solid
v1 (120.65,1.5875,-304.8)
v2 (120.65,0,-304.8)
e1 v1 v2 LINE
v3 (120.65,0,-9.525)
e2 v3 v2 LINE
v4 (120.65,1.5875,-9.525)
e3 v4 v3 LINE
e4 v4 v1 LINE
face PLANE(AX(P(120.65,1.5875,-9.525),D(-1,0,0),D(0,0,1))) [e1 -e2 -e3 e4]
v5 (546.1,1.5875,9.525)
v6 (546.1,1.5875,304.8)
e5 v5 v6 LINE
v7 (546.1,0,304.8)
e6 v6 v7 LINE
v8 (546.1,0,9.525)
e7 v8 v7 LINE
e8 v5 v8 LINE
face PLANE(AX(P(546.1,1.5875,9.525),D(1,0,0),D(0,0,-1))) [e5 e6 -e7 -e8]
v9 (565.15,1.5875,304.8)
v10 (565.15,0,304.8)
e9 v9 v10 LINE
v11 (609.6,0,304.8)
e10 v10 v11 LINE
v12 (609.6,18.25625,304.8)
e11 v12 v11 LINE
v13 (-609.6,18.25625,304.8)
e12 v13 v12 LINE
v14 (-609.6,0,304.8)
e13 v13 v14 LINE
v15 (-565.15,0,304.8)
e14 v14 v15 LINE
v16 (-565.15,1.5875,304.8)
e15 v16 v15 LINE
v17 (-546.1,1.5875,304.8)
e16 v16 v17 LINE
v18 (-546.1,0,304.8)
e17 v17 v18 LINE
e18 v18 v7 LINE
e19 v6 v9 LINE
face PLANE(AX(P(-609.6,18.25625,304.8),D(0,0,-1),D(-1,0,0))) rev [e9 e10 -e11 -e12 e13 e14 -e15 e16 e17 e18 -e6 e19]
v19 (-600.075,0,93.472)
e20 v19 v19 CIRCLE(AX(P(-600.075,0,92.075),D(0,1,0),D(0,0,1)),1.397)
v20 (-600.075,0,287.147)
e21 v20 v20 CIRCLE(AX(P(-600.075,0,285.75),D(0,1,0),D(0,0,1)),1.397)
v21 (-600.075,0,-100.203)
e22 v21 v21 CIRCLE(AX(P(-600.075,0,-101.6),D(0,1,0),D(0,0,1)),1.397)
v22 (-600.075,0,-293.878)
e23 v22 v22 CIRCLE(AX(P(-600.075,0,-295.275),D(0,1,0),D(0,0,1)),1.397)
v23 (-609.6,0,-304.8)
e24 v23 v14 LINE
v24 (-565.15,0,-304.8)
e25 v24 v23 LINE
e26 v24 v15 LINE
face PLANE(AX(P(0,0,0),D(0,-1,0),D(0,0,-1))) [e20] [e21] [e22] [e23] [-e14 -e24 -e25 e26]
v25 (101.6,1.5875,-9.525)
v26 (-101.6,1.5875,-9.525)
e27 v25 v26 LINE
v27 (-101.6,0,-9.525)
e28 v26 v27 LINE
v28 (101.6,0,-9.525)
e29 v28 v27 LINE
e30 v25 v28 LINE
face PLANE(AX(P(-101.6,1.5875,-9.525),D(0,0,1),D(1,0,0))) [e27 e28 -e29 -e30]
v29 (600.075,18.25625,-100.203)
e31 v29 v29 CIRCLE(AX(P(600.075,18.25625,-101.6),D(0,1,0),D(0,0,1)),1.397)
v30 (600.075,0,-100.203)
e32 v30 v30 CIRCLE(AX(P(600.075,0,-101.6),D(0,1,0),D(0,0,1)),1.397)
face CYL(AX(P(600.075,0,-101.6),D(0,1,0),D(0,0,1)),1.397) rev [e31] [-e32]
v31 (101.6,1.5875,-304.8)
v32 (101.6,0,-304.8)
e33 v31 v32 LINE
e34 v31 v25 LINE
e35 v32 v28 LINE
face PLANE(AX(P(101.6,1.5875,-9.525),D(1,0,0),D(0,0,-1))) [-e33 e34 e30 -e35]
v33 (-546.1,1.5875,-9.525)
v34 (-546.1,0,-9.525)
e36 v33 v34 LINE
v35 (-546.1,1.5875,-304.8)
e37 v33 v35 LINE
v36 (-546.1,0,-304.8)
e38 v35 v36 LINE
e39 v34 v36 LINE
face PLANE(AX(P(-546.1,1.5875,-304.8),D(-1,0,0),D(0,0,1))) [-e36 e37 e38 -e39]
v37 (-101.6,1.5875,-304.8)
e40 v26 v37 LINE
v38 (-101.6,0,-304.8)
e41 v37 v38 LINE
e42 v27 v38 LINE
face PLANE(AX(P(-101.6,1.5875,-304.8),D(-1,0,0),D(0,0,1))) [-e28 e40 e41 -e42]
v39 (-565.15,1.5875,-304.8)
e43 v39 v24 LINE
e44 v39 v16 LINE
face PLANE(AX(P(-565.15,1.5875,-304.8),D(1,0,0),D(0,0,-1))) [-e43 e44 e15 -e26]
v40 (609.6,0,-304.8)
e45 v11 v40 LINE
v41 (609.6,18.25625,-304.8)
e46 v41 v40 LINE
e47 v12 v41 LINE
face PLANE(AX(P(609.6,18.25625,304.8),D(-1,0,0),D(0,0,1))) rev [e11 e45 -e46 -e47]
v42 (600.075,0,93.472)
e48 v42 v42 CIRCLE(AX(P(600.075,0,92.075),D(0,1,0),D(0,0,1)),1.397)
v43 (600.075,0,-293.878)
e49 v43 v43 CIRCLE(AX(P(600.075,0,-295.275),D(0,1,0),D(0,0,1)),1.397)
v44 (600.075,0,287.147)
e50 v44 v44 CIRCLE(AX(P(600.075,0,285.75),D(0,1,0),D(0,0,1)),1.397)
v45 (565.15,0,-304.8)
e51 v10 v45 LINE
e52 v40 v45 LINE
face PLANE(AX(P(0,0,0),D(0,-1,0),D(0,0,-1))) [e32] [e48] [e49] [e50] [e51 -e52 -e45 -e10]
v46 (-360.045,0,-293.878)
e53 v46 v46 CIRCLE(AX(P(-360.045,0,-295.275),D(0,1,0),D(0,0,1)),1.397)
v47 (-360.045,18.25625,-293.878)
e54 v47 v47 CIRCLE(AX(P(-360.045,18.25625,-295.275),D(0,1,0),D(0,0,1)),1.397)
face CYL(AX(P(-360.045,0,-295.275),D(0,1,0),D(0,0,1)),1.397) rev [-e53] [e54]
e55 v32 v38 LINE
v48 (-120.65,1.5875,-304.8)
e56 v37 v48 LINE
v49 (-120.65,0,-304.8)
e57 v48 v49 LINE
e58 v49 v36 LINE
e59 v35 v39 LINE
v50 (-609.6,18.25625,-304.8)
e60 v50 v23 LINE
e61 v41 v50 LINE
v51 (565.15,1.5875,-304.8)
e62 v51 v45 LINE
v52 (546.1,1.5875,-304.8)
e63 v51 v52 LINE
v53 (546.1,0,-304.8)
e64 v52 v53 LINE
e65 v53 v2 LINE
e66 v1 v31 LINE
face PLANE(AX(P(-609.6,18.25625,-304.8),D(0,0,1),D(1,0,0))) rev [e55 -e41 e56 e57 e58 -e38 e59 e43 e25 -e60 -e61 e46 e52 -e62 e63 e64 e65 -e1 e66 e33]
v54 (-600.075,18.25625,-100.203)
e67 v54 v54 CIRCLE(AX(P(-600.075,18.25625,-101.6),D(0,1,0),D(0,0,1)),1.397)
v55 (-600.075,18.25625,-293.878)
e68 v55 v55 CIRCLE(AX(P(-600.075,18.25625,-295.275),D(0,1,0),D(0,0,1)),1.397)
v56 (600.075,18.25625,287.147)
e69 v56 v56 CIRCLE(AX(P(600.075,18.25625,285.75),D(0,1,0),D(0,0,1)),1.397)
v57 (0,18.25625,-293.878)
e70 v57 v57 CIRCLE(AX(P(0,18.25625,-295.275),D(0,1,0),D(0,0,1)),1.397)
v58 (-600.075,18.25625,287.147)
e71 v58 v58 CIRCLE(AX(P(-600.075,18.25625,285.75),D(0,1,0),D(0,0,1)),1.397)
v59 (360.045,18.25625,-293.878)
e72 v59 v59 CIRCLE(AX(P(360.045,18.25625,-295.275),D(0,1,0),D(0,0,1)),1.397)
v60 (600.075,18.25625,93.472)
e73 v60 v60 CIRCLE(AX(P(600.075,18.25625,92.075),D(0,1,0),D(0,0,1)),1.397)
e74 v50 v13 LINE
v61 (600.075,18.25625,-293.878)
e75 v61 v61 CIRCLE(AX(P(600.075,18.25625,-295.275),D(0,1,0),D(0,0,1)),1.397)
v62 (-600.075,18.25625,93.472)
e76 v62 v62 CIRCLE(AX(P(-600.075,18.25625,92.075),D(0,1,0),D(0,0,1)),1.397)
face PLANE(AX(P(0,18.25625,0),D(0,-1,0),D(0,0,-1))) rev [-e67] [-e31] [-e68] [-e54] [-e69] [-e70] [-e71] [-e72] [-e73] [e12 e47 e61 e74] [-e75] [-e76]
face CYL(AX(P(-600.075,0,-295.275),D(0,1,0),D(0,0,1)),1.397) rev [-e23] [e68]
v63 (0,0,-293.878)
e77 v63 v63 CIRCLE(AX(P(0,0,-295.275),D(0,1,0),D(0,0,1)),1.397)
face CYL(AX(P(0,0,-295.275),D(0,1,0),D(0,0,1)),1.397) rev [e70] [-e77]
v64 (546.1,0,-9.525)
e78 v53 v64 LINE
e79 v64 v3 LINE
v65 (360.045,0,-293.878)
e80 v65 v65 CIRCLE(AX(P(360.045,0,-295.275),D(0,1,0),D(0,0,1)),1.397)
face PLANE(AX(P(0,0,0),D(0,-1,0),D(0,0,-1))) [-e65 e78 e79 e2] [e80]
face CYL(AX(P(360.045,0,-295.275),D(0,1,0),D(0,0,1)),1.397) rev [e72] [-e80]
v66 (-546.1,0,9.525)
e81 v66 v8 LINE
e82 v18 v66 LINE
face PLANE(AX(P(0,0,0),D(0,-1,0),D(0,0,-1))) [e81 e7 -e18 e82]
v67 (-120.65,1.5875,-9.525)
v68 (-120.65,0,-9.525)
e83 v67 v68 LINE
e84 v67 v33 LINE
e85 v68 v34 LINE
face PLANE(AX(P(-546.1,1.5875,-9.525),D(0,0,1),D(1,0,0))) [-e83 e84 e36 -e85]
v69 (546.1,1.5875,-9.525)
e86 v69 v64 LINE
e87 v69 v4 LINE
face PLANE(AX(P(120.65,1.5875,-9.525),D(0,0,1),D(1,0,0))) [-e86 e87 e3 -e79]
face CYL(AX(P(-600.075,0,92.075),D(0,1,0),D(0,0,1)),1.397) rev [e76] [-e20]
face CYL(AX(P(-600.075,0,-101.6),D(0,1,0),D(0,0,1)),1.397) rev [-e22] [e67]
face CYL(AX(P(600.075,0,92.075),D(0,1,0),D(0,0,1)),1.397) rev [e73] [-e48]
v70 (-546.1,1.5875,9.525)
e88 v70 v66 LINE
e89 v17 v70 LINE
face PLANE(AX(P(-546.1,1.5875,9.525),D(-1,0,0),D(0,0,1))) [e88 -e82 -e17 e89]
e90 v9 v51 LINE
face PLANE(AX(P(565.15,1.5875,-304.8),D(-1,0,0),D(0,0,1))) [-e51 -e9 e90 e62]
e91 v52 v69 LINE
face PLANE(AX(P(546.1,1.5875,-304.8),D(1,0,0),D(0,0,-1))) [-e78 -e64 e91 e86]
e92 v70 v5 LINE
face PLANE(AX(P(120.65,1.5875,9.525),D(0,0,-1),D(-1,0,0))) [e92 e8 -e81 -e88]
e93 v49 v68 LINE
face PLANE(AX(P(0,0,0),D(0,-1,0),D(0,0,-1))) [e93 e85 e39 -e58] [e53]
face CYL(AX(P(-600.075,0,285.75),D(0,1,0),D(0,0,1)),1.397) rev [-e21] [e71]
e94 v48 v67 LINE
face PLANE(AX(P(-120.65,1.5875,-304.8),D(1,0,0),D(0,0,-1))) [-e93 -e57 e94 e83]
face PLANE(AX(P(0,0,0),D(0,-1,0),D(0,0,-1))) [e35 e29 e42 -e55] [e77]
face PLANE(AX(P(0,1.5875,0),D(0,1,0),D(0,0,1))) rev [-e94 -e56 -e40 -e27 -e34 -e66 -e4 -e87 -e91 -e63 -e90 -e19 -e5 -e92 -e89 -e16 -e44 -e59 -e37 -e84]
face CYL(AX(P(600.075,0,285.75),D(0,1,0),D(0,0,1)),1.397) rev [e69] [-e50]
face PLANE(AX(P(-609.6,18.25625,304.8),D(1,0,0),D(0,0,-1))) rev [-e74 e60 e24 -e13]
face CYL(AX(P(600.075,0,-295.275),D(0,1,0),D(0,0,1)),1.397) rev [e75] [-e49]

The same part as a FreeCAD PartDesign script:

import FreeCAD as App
import Part
import Sketcher

V = App.Vector
Q = App.Units.Quantity

doc = App.newDocument("Part")
body = doc.addObject("PartDesign::Body", "Body")

# Sketch on XZ plane
sketch1 = body.newObject("Sketcher::SketchObject", "Sketch")
sketch1.AttachmentSupport = (doc.getObject("XZ_Plane"), [""])
sketch1.MapMode = "FlatFace"
sketch1.addGeometry(Part.LineSegment(V(-610, -305, 0), V(-610, 305, 0)), False)
sketch1.addGeometry(Part.LineSegment(V(-610, 305, 0), V(610, 305, 0)), False)
sketch1.addGeometry(Part.LineSegment(V(610, 305, 0), V(610, -305, 0)), False)
sketch1.addGeometry(Part.LineSegment(V(610, -305, 0), V(-610, -305, 0)), False)
sketch1.addConstraint(Sketcher.Constraint("Coincident", 0, 2, 1, 1))
sketch1.addConstraint(Sketcher.Constraint("Coincident", 1, 2, 2, 1))
sketch1.addConstraint(Sketcher.Constraint("Coincident", 2, 2, 3, 1))
sketch1.addConstraint(Sketcher.Constraint("Coincident", 3, 2, 0, 1))
sketch1.addConstraint(Sketcher.Constraint("Vertical", 0))
sketch1.addConstraint(Sketcher.Constraint("Horizontal", 1))
sketch1.addConstraint(Sketcher.Constraint("Vertical", 2))
sketch1.addConstraint(Sketcher.Constraint("Horizontal", 3))
sketch1.addConstraint(Sketcher.Constraint("Symmetric", 0, 2, 2, 2, -1, 1))
sketch1.addConstraint(Sketcher.Constraint("DistanceX", 1, 1, 1, 2, Q("48 in")))
sketch1.addConstraint(Sketcher.Constraint("DistanceY", 0, 1, 0, 2, Q("24 in")))
pad1 = body.newObject("PartDesign::Pad", "Pad")
pad1.Profile = sketch1
pad1.Length = Q("0.71875 in")
pad1.Reversed = True

# Sketch on XZ plane
sketch2 = body.newObject("Sketcher::SketchObject", "Sketch001")
sketch2.AttachmentSupport = (doc.getObject("XZ_Plane"), [""])
sketch2.MapMode = "FlatFace"
sketch2.addGeometry(Part.LineSegment(V(-546, -305, 0), V(-565, -305, 0)), False)
sketch2.addGeometry(Part.LineSegment(V(-565, -305, 0), V(-565, 305, 0)), False)
sketch2.addGeometry(Part.LineSegment(V(-565, 305, 0), V(-546, 305, 0)), False)
sketch2.addGeometry(Part.LineSegment(V(-546, 305, 0), V(-546, 10, 0)), False)
sketch2.addGeometry(Part.LineSegment(V(-546, 10, 0), V(546, 10, 0)), False)
sketch2.addGeometry(Part.LineSegment(V(546, 10, 0), V(546, 305, 0)), False)
sketch2.addGeometry(Part.LineSegment(V(546, 305, 0), V(565, 305, 0)), False)
sketch2.addGeometry(Part.LineSegment(V(565, 305, 0), V(565, -305, 0)), False)
sketch2.addGeometry(Part.LineSegment(V(565, -305, 0), V(546, -305, 0)), False)
sketch2.addGeometry(Part.LineSegment(V(546, -305, 0), V(546, -10, 0)), False)
sketch2.addGeometry(Part.LineSegment(V(546, -10, 0), V(121, -10, 0)), False)
sketch2.addGeometry(Part.LineSegment(V(121, -10, 0), V(121, -305, 0)), False)
sketch2.addGeometry(Part.LineSegment(V(121, -305, 0), V(102, -305, 0)), False)
sketch2.addGeometry(Part.LineSegment(V(102, -305, 0), V(102, -10, 0)), False)
sketch2.addGeometry(Part.LineSegment(V(102, -10, 0), V(-102, -10, 0)), False)
sketch2.addGeometry(Part.LineSegment(V(-102, -10, 0), V(-102, -305, 0)), False)
sketch2.addGeometry(Part.LineSegment(V(-102, -305, 0), V(-121, -305, 0)), False)
sketch2.addGeometry(Part.LineSegment(V(-121, -305, 0), V(-121, -10, 0)), False)
sketch2.addGeometry(Part.LineSegment(V(-121, -10, 0), V(-546, -10, 0)), False)
sketch2.addGeometry(Part.LineSegment(V(-546, -10, 0), V(-546, -305, 0)), False)
sketch2.addConstraint(Sketcher.Constraint("Coincident", 0, 2, 1, 1))
sketch2.addConstraint(Sketcher.Constraint("Coincident", 1, 2, 2, 1))
sketch2.addConstraint(Sketcher.Constraint("Coincident", 2, 2, 3, 1))
sketch2.addConstraint(Sketcher.Constraint("Coincident", 3, 2, 4, 1))
sketch2.addConstraint(Sketcher.Constraint("Coincident", 4, 2, 5, 1))
sketch2.addConstraint(Sketcher.Constraint("Coincident", 5, 2, 6, 1))
sketch2.addConstraint(Sketcher.Constraint("Coincident", 6, 2, 7, 1))
sketch2.addConstraint(Sketcher.Constraint("Coincident", 7, 2, 8, 1))
sketch2.addConstraint(Sketcher.Constraint("Coincident", 8, 2, 9, 1))
sketch2.addConstraint(Sketcher.Constraint("Coincident", 9, 2, 10, 1))
sketch2.addConstraint(Sketcher.Constraint("Coincident", 10, 2, 11, 1))
sketch2.addConstraint(Sketcher.Constraint("Coincident", 11, 2, 12, 1))
sketch2.addConstraint(Sketcher.Constraint("Coincident", 12, 2, 13, 1))
sketch2.addConstraint(Sketcher.Constraint("Coincident", 13, 2, 14, 1))
sketch2.addConstraint(Sketcher.Constraint("Coincident", 14, 2, 15, 1))
sketch2.addConstraint(Sketcher.Constraint("Coincident", 15, 2, 16, 1))
sketch2.addConstraint(Sketcher.Constraint("Coincident", 16, 2, 17, 1))
sketch2.addConstraint(Sketcher.Constraint("Coincident", 17, 2, 18, 1))
sketch2.addConstraint(Sketcher.Constraint("Coincident", 18, 2, 19, 1))
sketch2.addConstraint(Sketcher.Constraint("Coincident", 19, 2, 0, 1))
sketch2.addConstraint(Sketcher.Constraint("Horizontal", 0))
sketch2.addConstraint(Sketcher.Constraint("Vertical", 1))
sketch2.addConstraint(Sketcher.Constraint("Horizontal", 2))
sketch2.addConstraint(Sketcher.Constraint("Vertical", 3))
sketch2.addConstraint(Sketcher.Constraint("Horizontal", 4))
sketch2.addConstraint(Sketcher.Constraint("Vertical", 5))
sketch2.addConstraint(Sketcher.Constraint("Horizontal", 6))
sketch2.addConstraint(Sketcher.Constraint("Vertical", 7))
sketch2.addConstraint(Sketcher.Constraint("Horizontal", 8))
sketch2.addConstraint(Sketcher.Constraint("Vertical", 9))
sketch2.addConstraint(Sketcher.Constraint("Horizontal", 10))
sketch2.addConstraint(Sketcher.Constraint("Vertical", 11))
sketch2.addConstraint(Sketcher.Constraint("Horizontal", 12))
sketch2.addConstraint(Sketcher.Constraint("Vertical", 13))
sketch2.addConstraint(Sketcher.Constraint("Horizontal", 14))
sketch2.addConstraint(Sketcher.Constraint("Vertical", 15))
sketch2.addConstraint(Sketcher.Constraint("Horizontal", 16))
sketch2.addConstraint(Sketcher.Constraint("Vertical", 17))
sketch2.addConstraint(Sketcher.Constraint("Horizontal", 18))
sketch2.addConstraint(Sketcher.Constraint("Vertical", 19))
sketch2.addConstraint(Sketcher.Constraint("Symmetric", 0, 2, 6, 2, -1, 1))
sketch2.addConstraint(Sketcher.Constraint("Symmetric", 2, 2, 8, 2, -1, 1))
sketch2.addConstraint(Sketcher.Constraint("Symmetric", 4, 2, 18, 2, -1, 1))
sketch2.addConstraint(Sketcher.Constraint("Symmetric", 2, 2, 5, 2, -2))
sketch2.addConstraint(Sketcher.Constraint("Symmetric", 12, 2, 15, 2, -2))
sketch2.addConstraint(Sketcher.Constraint("Symmetric", 10, 2, 17, 2, -2))
sketch2.addConstraint(Sketcher.Constraint("Horizontal", 8, 2, 11, 2))
sketch2.addConstraint(Sketcher.Constraint("Horizontal", 10, 2, 13, 2))
sketch2.addConstraint(Sketcher.Constraint("Equal", 8, 12))
sketch2.addConstraint(Sketcher.Constraint("DistanceX", 4, 1, 4, 2, Q("43 in")))
sketch2.addConstraint(Sketcher.Constraint("DistanceX", 14, 2, 14, 1, Q("8 in")))
sketch2.addConstraint(Sketcher.Constraint("DistanceY", 1, 1, 1, 2, Q("24 in")))
sketch2.addConstraint(Sketcher.Constraint("DistanceX", 0, 2, 0, 1, Q("0.75 in")))
sketch2.addConstraint(Sketcher.Constraint("DistanceY", 3, 2, 3, 1, Q("11.625 in")))
pocket1 = body.newObject("PartDesign::Pocket", "Pocket")
pocket1.Profile = sketch2
pocket1.Length = Q("0.0625 in")

# Sketch on XZ plane
sketch3 = body.newObject("Sketcher::SketchObject", "Sketch002")
sketch3.AttachmentSupport = (doc.getObject("XZ_Plane"), [""])
sketch3.MapMode = "FlatFace"
sketch3.AttachmentOffset = App.Placement(V(0, 0, -0.71875 * 25.4), App.Rotation())
sketch3.addGeometry(Part.Circle(V(-600.1, 285.8, 0), V(0, 0, 1), 1.4), False)
sketch3.addGeometry(Part.Circle(V(600.1, 285.8, 0), V(0, 0, 1), 1.4), False)
sketch3.addGeometry(Part.Circle(V(600.1, 92.1, 0), V(0, 0, 1), 1.4), False)
sketch3.addGeometry(Part.Circle(V(600.1, -101.6, 0), V(0, 0, 1), 1.4), False)
sketch3.addGeometry(Part.Circle(V(-360, -295.3, 0), V(0, 0, 1), 1.4), False)
sketch3.addGeometry(Part.Circle(V(0, -295.3, 0), V(0, 0, 1), 1.4), False)
sketch3.addGeometry(Part.Circle(V(360, -295.3, 0), V(0, 0, 1), 1.4), False)
sketch3.addGeometry(Part.Circle(V(600.1, -295.3, 0), V(0, 0, 1), 1.4), False)
sketch3.addGeometry(Part.Circle(V(-600.1, 92.1, 0), V(0, 0, 1), 1.4), False)
sketch3.addGeometry(Part.Circle(V(-600.1, -101.6, 0), V(0, 0, 1), 1.4), False)
sketch3.addGeometry(Part.Circle(V(-600.1, -295.3, 0), V(0, 0, 1), 1.4), False)
sketch3.addConstraint(Sketcher.Constraint("Equal", 0, 1))
sketch3.addConstraint(Sketcher.Constraint("Equal", 1, 2))
sketch3.addConstraint(Sketcher.Constraint("Equal", 2, 3))
sketch3.addConstraint(Sketcher.Constraint("Equal", 3, 4))
sketch3.addConstraint(Sketcher.Constraint("Equal", 4, 5))
sketch3.addConstraint(Sketcher.Constraint("Equal", 5, 6))
sketch3.addConstraint(Sketcher.Constraint("Equal", 6, 7))
sketch3.addConstraint(Sketcher.Constraint("Equal", 7, 8))
sketch3.addConstraint(Sketcher.Constraint("Equal", 8, 9))
sketch3.addConstraint(Sketcher.Constraint("Equal", 9, 10))
sketch3.addConstraint(Sketcher.Constraint("Symmetric", 0, 3, 1, 3, -2))
sketch3.addConstraint(Sketcher.Constraint("Symmetric", 4, 3, 6, 3, -2))
sketch3.addConstraint(Sketcher.Constraint("Symmetric", 2, 3, 8, 3, -2))
sketch3.addConstraint(Sketcher.Constraint("Symmetric", 3, 3, 9, 3, -2))
sketch3.addConstraint(Sketcher.Constraint("Symmetric", 7, 3, 10, 3, -2))
sketch3.addConstraint(Sketcher.Constraint("PointOnObject", 5, 3, -2))
sketch3.addConstraint(Sketcher.Constraint("Horizontal", 4, 3, 5, 3))
sketch3.addConstraint(Sketcher.Constraint("Horizontal", 6, 3, 7, 3))
sketch3.addConstraint(Sketcher.Constraint("Vertical", 1, 3, 2, 3))
sketch3.addConstraint(Sketcher.Constraint("Vertical", 2, 3, 3, 3))
sketch3.addConstraint(Sketcher.Constraint("Vertical", 3, 3, 7, 3))
sketch3.addConstraint(Sketcher.Constraint("Diameter", 0, Q("0.11 in")))
sketch3.addConstraint(Sketcher.Constraint("DistanceY", 3, 3, -1, 1, Q("4 in")))
sketch3.addConstraint(Sketcher.Constraint("DistanceX", 4, 3, 3, 3, Q("37.8 in")))
sketch3.addConstraint(Sketcher.Constraint("DistanceY", -1, 1, 0, 3, Q("11.25 in")))
sketch3.addConstraint(Sketcher.Constraint("DistanceX", 0, 3, 1, 3, Q("47.25 in")))
sketch3.addConstraint(Sketcher.Constraint("DistanceY", 4, 3, 2, 3, Q("15.25 in")))
sketch3.addConstraint(Sketcher.Constraint("DistanceY", -1, 1, 2, 3, Q("3.625 in")))
pocket2 = body.newObject("PartDesign::Pocket", "Pocket001")
pocket2.Profile = sketch3
pocket2.Type = "ThroughAll"
pocket2.Reversed = True

doc.recompute()
